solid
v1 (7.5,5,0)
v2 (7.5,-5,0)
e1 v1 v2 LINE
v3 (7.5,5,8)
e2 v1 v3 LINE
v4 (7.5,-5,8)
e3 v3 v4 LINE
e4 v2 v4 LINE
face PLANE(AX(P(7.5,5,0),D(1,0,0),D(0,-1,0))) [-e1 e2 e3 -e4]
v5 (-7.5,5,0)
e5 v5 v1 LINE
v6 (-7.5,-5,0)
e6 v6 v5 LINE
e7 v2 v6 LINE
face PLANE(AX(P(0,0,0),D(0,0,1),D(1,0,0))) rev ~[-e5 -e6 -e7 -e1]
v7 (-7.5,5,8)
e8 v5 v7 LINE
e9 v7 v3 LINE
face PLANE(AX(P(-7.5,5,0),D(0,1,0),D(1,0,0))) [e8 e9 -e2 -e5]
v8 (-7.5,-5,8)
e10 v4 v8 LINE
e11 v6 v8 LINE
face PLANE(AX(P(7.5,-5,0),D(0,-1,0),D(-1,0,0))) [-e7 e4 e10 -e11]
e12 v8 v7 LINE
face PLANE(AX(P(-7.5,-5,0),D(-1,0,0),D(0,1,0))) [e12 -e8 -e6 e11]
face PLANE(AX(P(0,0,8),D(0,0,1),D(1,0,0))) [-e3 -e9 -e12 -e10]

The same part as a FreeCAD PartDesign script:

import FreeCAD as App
import Part
import Sketcher
Q = App.Units.Quantity


def add_polygon(sketch, points):
    """Adds a closed chain of lines whose ends are joined by coincident constraints."""
    first, n = sketch.GeometryCount, len(points)
    for a, b in zip(points, points[1:] + points[:1]):
        sketch.addGeometry(Part.LineSegment(App.Vector(*a, 0), App.Vector(*b, 0)), False)
    for i in range(n):
        sketch.addConstraint(Sketcher.Constraint("Coincident", first + i, 2, first + (i + 1) % n, 1))

doc = App.newDocument("Part")
body = doc.addObject("PartDesign::Body", "Body")

# Sketch on XY plane
sketch1 = body.newObject("Sketcher::SketchObject", "Sketch")
sketch1.AttachmentSupport = (doc.getObject("XY_Plane"), [""])
sketch1.MapMode = "FlatFace"
add_polygon(sketch1, [(8, 5), (-8, 5), (-8, -5), (8, -5)])  # lines 0-3
sketch1.addConstraint(Sketcher.Constraint("Horizontal", 0))
sketch1.addConstraint(Sketcher.Constraint("Vertical", 1))
sketch1.addConstraint(Sketcher.Constraint("Horizontal", 2))
sketch1.addConstraint(Sketcher.Constraint("Vertical", 3))
sketch1.addConstraint(Sketcher.Constraint("Symmetric", 0, 2, 2, 2, -1, 1))
sketch1.addConstraint(Sketcher.Constraint("DistanceX", 0, 2, 0, 1, Q("15 mm")))
sketch1.addConstraint(Sketcher.Constraint("DistanceY", 1, 2, 1, 1, Q("10 mm")))
pad1 = body.newObject("PartDesign::Pad", "Pad")
pad1.Profile = sketch1
pad1.Length = 8

doc.recompute()
